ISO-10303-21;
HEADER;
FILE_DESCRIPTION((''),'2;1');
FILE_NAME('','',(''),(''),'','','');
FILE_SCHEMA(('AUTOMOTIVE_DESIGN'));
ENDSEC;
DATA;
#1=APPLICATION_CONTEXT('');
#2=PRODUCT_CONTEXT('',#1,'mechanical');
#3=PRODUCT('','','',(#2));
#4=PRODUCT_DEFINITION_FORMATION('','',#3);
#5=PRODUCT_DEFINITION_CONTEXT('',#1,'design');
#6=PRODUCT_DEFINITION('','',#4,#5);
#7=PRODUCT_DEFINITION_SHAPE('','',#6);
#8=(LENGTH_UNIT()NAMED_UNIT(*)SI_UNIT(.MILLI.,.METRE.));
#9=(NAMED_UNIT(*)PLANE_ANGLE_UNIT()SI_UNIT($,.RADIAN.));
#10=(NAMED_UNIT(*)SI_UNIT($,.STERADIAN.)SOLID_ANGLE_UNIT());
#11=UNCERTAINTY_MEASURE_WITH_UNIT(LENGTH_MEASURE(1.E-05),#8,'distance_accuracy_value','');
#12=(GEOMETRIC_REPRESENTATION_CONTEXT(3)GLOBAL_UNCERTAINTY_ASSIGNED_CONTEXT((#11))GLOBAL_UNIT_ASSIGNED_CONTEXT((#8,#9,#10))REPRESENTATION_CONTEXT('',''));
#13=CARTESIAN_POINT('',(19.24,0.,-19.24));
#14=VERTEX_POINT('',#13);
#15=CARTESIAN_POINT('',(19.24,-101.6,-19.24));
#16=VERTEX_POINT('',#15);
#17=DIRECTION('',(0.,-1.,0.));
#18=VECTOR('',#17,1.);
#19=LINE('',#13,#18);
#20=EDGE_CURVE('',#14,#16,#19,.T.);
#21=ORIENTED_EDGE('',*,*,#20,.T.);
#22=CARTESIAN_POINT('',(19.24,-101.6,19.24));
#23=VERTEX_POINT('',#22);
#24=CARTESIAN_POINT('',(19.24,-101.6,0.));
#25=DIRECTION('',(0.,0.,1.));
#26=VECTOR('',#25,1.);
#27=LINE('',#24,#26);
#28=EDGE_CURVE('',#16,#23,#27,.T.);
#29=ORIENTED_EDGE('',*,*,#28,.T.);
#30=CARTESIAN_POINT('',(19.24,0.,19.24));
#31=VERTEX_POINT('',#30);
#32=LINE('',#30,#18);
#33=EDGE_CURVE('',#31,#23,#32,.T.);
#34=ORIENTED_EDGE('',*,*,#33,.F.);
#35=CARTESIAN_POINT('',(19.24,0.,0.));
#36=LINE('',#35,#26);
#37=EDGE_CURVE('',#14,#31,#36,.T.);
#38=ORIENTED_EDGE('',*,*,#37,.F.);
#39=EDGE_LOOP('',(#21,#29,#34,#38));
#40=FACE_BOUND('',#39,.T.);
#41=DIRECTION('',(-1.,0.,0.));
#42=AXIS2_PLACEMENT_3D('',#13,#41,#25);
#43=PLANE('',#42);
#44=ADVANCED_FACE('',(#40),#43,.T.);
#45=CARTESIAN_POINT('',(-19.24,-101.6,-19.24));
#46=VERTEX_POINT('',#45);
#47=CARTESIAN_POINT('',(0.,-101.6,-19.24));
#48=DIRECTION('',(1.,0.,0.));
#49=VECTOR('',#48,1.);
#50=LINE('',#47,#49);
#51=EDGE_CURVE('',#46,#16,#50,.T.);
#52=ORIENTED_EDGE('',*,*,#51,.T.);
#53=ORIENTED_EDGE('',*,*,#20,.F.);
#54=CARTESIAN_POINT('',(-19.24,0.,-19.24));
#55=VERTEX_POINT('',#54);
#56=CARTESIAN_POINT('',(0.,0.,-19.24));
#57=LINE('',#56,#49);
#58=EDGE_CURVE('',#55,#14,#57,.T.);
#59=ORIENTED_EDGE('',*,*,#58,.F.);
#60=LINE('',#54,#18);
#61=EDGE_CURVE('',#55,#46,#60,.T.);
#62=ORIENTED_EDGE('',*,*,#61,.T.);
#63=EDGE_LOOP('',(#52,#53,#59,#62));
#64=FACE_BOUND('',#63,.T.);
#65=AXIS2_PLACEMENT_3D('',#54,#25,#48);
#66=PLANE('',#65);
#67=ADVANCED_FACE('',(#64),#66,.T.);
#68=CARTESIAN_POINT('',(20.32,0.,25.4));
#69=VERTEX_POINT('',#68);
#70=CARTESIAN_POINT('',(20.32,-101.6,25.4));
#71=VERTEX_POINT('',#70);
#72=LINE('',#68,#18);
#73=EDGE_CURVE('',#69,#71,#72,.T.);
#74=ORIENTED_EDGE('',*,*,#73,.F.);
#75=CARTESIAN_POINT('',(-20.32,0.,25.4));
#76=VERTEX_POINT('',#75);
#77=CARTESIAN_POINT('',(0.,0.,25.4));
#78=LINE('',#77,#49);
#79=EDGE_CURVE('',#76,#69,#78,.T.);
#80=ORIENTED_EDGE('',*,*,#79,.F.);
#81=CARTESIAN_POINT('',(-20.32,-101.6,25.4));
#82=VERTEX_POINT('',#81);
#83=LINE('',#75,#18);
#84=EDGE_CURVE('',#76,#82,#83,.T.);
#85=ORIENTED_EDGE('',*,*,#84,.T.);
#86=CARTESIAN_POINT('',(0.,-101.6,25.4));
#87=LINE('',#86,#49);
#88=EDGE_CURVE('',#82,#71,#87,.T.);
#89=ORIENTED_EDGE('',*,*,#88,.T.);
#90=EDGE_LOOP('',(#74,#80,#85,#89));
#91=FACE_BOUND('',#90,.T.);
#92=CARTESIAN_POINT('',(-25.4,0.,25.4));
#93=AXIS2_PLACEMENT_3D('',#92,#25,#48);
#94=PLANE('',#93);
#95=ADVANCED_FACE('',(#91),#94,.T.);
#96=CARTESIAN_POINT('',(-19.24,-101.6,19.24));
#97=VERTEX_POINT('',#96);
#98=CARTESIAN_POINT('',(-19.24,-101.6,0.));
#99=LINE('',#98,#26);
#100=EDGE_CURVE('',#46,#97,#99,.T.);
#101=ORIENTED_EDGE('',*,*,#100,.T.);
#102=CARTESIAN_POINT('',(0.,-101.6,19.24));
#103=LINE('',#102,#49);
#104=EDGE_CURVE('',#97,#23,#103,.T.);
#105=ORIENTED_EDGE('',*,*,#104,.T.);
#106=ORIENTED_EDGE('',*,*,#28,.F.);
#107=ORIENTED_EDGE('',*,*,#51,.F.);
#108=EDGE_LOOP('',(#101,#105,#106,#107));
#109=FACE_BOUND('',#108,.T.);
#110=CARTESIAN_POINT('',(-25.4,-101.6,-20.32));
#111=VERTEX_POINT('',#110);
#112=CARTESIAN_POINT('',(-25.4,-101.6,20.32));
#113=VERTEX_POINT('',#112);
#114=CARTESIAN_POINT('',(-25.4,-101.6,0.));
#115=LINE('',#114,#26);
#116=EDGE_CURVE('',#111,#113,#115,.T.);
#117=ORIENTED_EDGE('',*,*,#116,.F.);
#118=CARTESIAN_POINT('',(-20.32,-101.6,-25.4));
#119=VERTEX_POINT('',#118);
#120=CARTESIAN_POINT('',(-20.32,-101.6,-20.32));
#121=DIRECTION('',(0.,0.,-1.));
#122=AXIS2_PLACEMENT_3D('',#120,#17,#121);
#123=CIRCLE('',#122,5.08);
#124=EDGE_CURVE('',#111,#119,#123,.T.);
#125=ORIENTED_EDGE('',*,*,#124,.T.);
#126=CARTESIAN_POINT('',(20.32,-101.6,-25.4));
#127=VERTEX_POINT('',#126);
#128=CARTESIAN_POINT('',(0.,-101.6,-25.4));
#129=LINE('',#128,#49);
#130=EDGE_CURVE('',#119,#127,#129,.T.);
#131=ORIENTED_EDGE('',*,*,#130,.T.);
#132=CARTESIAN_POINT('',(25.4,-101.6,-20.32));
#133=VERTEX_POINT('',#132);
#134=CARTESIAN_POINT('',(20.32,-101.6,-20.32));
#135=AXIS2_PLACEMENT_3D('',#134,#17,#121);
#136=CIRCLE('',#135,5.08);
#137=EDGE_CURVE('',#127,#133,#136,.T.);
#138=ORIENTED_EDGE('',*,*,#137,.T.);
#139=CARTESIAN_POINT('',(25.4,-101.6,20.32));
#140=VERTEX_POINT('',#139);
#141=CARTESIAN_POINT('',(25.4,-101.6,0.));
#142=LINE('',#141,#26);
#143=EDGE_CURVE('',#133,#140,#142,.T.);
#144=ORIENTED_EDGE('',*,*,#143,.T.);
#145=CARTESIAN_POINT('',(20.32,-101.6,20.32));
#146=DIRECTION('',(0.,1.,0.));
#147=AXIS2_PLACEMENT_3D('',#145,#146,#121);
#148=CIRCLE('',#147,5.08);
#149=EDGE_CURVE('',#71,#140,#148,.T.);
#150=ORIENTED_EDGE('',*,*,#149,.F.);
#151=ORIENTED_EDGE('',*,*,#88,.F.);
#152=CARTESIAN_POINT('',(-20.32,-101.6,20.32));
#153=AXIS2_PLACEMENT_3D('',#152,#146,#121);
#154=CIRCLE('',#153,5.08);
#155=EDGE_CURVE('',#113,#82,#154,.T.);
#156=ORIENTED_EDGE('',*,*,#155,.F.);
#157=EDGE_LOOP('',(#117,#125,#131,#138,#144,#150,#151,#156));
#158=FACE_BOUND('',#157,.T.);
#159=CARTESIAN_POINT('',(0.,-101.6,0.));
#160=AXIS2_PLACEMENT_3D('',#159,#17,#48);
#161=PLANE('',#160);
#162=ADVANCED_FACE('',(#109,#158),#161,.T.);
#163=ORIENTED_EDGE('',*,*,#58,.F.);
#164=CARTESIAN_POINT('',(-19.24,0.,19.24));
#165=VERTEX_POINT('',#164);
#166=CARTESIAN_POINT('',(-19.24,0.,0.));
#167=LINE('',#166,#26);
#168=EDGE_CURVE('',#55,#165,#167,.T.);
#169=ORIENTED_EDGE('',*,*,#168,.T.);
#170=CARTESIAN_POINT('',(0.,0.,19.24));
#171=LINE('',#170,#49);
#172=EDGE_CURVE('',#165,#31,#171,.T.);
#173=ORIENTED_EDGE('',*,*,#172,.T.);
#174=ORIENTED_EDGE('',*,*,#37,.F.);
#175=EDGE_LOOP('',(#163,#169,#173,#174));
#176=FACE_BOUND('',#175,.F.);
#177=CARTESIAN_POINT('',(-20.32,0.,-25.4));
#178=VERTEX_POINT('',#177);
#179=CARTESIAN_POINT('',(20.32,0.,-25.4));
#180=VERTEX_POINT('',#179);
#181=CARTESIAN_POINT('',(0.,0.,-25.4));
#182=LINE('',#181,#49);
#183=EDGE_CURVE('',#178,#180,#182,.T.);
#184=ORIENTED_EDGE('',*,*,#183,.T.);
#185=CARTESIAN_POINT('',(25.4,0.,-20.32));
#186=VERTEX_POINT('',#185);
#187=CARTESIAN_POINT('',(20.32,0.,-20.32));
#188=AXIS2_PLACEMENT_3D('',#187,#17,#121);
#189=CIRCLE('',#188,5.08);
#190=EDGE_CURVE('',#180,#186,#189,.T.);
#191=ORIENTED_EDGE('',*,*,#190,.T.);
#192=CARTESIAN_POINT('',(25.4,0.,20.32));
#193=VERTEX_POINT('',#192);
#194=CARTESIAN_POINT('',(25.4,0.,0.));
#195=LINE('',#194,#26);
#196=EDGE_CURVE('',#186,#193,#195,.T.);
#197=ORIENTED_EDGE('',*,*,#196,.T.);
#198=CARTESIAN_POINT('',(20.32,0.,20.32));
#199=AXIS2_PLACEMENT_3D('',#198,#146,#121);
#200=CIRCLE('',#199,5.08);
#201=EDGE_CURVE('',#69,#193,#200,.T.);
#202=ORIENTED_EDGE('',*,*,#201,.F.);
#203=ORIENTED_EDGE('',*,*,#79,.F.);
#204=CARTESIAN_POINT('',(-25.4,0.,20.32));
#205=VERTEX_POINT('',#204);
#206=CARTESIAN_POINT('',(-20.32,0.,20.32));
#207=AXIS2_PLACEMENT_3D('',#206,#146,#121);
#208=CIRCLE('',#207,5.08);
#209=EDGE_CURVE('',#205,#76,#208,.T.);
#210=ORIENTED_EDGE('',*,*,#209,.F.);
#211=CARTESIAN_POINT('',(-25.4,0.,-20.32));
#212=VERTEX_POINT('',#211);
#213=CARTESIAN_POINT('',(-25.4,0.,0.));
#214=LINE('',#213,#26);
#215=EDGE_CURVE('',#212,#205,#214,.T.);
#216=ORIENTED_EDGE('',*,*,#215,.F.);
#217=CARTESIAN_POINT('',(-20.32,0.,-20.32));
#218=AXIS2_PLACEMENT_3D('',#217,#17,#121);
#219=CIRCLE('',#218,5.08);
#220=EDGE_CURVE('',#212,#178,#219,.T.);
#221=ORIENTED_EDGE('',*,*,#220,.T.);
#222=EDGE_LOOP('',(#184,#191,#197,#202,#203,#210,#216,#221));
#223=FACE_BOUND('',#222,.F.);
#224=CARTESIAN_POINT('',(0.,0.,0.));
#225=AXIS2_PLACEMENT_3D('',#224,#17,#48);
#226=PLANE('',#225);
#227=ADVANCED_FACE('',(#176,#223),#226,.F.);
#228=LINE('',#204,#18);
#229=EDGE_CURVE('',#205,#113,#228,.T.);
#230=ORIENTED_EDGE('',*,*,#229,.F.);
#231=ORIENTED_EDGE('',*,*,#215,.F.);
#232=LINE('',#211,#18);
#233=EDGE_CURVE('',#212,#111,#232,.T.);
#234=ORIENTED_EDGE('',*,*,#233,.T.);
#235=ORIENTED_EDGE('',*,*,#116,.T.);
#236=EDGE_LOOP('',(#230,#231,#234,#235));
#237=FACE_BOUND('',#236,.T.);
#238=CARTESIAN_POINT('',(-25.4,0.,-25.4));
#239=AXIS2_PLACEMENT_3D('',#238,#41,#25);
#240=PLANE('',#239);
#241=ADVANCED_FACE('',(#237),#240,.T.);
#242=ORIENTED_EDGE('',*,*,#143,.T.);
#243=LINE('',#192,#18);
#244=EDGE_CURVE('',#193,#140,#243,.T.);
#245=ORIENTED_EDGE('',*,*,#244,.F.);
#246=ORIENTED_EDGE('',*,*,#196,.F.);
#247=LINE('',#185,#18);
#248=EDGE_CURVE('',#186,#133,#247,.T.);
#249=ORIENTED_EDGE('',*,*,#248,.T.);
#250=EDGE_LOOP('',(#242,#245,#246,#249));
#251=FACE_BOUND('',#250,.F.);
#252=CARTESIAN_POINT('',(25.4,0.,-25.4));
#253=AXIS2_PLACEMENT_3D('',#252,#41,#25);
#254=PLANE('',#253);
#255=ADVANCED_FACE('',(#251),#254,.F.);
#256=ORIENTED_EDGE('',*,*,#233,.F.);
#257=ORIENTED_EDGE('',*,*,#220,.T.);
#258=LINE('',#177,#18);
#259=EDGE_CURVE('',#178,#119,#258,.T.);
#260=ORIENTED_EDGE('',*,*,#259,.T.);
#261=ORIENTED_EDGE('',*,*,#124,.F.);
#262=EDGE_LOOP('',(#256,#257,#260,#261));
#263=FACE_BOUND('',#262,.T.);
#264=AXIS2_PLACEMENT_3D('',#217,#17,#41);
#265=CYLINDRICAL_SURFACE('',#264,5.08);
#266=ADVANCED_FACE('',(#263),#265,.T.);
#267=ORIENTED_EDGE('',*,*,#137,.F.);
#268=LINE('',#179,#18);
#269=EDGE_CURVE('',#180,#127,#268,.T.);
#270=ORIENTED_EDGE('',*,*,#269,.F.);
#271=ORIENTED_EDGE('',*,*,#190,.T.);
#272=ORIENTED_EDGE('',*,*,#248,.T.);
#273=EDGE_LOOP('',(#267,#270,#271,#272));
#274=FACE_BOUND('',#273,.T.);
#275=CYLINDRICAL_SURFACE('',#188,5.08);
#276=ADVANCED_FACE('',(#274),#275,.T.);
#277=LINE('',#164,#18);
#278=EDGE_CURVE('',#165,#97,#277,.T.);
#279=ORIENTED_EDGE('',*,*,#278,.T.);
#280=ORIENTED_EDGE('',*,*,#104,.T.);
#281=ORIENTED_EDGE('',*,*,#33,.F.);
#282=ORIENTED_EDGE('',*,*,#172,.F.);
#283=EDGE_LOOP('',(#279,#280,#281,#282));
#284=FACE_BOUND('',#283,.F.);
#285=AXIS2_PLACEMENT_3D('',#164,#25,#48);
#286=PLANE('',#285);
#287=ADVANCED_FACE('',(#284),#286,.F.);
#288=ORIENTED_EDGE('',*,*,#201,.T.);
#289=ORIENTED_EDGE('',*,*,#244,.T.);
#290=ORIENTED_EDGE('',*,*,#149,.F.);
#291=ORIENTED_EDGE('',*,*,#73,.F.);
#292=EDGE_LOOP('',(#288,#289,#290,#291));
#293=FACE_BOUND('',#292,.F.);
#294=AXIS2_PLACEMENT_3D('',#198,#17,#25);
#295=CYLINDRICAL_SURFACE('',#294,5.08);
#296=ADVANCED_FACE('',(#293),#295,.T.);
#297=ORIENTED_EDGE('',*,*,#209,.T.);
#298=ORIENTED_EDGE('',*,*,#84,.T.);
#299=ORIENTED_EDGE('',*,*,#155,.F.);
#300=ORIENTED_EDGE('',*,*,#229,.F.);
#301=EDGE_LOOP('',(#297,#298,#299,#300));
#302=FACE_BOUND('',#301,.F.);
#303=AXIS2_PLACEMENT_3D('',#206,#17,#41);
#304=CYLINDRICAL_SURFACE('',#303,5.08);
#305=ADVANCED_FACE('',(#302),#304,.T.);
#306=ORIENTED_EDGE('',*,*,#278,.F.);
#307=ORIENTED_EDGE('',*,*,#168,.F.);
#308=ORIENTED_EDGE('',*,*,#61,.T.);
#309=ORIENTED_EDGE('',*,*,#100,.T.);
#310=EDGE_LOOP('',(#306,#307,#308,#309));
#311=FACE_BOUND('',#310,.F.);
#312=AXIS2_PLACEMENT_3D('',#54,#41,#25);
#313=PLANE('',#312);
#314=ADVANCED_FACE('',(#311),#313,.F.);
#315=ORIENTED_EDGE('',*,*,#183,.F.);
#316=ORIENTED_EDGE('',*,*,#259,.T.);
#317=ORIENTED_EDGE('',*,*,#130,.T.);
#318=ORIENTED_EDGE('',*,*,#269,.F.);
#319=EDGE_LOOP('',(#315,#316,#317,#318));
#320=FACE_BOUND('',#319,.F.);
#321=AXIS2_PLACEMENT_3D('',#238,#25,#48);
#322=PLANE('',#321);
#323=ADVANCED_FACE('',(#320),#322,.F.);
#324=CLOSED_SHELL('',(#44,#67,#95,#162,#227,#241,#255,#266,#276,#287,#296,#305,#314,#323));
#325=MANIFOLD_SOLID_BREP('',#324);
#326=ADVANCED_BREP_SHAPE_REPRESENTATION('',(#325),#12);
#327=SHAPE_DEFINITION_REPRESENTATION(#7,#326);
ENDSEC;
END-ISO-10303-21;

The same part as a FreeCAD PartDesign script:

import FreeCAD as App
import Part
import Sketcher
from FreeCAD import Vector
Q = App.Units.Quantity


def edges_at(feature, points):
    """Names of the edges that pass closest to the given points."""
    edges = feature.Shape.Edges
    near = lambda p: min(range(len(edges)), key=lambda i: edges[i].distToShape(Part.Vertex(*p))[0])
    return sorted({f"Edge{near(p) + 1}" for p in points})


def add_polygon(sketch, points):
    """Adds a closed chain of lines whose ends are joined by coincident constraints."""
    first, n = sketch.GeometryCount, len(points)
    for a, b in zip(points, points[1:] + points[:1]):
        sketch.addGeometry(Part.LineSegment(App.Vector(*a, 0), App.Vector(*b, 0)), False)
    for i in range(n):
        sketch.addConstraint(Sketcher.Constraint("Coincident", first + i, 2, first + (i + 1) % n, 1))

doc = App.newDocument("Part")
body = doc.addObject("PartDesign::Body", "Body")

# Sketch on XZ plane
sketch1 = body.newObject("Sketcher::SketchObject", "Sketch")
sketch1.AttachmentSupport = (doc.getObject("XZ_Plane"), [""])
sketch1.MapMode = "FlatFace"
add_polygon(sketch1, [(-25, 25), (-25, -25), (25, -25), (25, 25)])  # lines 0-3
add_polygon(sketch1, [(19, -19), (-19, -19), (-19, 19), (19, 19)])  # lines 4-7
sketch1.addConstraint([
    Sketcher.Constraint("Vertical", 0),
    Sketcher.Constraint("Horizontal", 1),
    Sketcher.Constraint("Vertical", 2),
    Sketcher.Constraint("Horizontal", 3),
    Sketcher.Constraint("Horizontal", 4),
    Sketcher.Constraint("Vertical", 5),
    Sketcher.Constraint("Horizontal", 6),
    Sketcher.Constraint("Vertical", 7),
    Sketcher.Constraint("Symmetric", 0, 2, 2, 2, -1, 1),
    Sketcher.Constraint("Symmetric", 4, 2, 6, 2, -1, 1),
    Sketcher.Constraint("Equal", 3, 0),
    Sketcher.Constraint("Equal", 6, 5),
    Sketcher.Constraint("DistanceX", 1, 1, 1, 2, Q("2 in")),
    Sketcher.Constraint("DistanceX", 4, 2, 4, 1, Q("38.48 mm")),
])
pad1 = body.newObject("PartDesign::Pad", "Pad")
pad1.Profile = sketch1
pad1.Length = Q("4 in")
doc.recompute()

fillet = body.newObject("PartDesign::Fillet", "Fillet")
fillet.Base = (pad1, edges_at(pad1, [
    (-25.4, -50.8, 25.4),
    (-25.4, -50.8, -25.4),
    (25.4, -50.8, -25.4),
    (25.4, -50.8, 25.4),
]))
fillet.Radius = Q("0.2 in")

doc.recompute()
